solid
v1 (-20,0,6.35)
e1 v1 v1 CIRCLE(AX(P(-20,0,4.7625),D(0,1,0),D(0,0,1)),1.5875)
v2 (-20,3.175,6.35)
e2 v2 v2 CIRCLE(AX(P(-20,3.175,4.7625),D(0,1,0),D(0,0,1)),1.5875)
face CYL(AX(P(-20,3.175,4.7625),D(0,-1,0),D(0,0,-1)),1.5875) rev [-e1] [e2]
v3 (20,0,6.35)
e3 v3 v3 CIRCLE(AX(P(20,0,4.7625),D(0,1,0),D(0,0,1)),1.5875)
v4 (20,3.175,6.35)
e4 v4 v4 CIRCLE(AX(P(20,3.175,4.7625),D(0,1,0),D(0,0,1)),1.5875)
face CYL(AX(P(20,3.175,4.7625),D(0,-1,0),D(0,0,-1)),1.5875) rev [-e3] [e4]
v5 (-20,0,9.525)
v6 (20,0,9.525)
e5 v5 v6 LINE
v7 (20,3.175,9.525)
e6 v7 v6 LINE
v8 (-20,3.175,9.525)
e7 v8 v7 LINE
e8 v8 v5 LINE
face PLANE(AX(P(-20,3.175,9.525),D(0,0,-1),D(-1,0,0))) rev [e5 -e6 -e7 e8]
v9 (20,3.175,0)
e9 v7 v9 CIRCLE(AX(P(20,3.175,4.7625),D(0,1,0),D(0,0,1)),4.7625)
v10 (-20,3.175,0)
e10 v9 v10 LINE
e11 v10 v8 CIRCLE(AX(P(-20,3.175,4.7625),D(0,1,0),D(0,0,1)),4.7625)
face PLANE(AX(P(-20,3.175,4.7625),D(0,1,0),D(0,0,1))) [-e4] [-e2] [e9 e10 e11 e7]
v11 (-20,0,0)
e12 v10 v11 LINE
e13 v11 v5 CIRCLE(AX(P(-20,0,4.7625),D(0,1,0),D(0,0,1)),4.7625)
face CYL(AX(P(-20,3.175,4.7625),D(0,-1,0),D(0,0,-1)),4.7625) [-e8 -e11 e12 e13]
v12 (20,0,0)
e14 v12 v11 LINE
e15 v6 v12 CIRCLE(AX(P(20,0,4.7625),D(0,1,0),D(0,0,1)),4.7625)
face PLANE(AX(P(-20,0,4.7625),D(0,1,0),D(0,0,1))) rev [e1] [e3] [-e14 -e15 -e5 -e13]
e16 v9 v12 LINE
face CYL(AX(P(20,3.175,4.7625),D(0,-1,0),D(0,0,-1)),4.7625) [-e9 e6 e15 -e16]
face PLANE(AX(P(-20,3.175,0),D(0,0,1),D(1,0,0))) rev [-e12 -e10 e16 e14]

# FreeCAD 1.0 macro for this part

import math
import FreeCAD as App
import Part
import Sketcher
from FreeCAD import Vector
Q = App.Units.Quantity

doc = App.newDocument("Part")
body = doc.addObject("PartDesign::Body", "Body")

# Sketch on XZ plane
sketch1 = body.newObject("Sketcher::SketchObject", "Sketch")
sketch1.AttachmentSupport = (doc.getObject("XZ_Plane"), [""])
sketch1.MapMode = "FlatFace"
sketch1.addGeometry(Part.LineSegment(Vector(20, 0, 0), Vector(-20, 0, 0)), False)
sketch1.addGeometry(Part.ArcOfCircle(Part.Circle(Vector(-20, 4.8, 0), Vector(0, 0, 1), 4.8), math.radians(90), math.radians(270)), False)
sketch1.addGeometry(Part.LineSegment(Vector(-20, 9.5, 0), Vector(20, 9.5, 0)), False)
sketch1.addGeometry(Part.ArcOfCircle(Part.Circle(Vector(20, 4.8, 0), Vector(0, 0, 1), 4.8), math.radians(-90), math.radians(90)), False)
sketch1.addGeometry(Part.Circle(Vector(20, 4.8, 0), Vector(0, 0, 1), 1.6), False)
sketch1.addGeometry(Part.Circle(Vector(-20, 4.8, 0), Vector(0, 0, 1), 1.6), False)
sketch1.addConstraint(Sketcher.Constraint("Tangent", 0, 2, 1, 2))
sketch1.addConstraint(Sketcher.Constraint("Tangent", 1, 1, 2, 1))
sketch1.addConstraint(Sketcher.Constraint("Tangent", 2, 2, 3, 2))
sketch1.addConstraint(Sketcher.Constraint("Tangent", 3, 1, 0, 1))
sketch1.addConstraint(Sketcher.Constraint("Horizontal", 0))
sketch1.addConstraint(Sketcher.Constraint("Horizontal", 2))
sketch1.addConstraint(Sketcher.Constraint("Coincident", 4, 3, 3, 3))
sketch1.addConstraint(Sketcher.Constraint("Coincident", 5, 3, 1, 3))
sketch1.addConstraint(Sketcher.Constraint("Equal", 4, 5))
sketch1.addConstraint(Sketcher.Constraint("Symmetric", 0, 2, 3, 1, -1, 1))
sketch1.addConstraint(Sketcher.Constraint("Diameter", 4, Q("0.125 in")))
sketch1.addConstraint(Sketcher.Constraint("Radius", 1, Q("0.1875 in")))
sketch1.addConstraint(Sketcher.Constraint("DistanceX", 0, 2, 0, 1, 40.0))
pad1 = body.newObject("PartDesign::Pad", "Pad")
pad1.Profile = sketch1
pad1.Length = Q("0.125 in")
pad1.Reversed = True

doc.recompute()
